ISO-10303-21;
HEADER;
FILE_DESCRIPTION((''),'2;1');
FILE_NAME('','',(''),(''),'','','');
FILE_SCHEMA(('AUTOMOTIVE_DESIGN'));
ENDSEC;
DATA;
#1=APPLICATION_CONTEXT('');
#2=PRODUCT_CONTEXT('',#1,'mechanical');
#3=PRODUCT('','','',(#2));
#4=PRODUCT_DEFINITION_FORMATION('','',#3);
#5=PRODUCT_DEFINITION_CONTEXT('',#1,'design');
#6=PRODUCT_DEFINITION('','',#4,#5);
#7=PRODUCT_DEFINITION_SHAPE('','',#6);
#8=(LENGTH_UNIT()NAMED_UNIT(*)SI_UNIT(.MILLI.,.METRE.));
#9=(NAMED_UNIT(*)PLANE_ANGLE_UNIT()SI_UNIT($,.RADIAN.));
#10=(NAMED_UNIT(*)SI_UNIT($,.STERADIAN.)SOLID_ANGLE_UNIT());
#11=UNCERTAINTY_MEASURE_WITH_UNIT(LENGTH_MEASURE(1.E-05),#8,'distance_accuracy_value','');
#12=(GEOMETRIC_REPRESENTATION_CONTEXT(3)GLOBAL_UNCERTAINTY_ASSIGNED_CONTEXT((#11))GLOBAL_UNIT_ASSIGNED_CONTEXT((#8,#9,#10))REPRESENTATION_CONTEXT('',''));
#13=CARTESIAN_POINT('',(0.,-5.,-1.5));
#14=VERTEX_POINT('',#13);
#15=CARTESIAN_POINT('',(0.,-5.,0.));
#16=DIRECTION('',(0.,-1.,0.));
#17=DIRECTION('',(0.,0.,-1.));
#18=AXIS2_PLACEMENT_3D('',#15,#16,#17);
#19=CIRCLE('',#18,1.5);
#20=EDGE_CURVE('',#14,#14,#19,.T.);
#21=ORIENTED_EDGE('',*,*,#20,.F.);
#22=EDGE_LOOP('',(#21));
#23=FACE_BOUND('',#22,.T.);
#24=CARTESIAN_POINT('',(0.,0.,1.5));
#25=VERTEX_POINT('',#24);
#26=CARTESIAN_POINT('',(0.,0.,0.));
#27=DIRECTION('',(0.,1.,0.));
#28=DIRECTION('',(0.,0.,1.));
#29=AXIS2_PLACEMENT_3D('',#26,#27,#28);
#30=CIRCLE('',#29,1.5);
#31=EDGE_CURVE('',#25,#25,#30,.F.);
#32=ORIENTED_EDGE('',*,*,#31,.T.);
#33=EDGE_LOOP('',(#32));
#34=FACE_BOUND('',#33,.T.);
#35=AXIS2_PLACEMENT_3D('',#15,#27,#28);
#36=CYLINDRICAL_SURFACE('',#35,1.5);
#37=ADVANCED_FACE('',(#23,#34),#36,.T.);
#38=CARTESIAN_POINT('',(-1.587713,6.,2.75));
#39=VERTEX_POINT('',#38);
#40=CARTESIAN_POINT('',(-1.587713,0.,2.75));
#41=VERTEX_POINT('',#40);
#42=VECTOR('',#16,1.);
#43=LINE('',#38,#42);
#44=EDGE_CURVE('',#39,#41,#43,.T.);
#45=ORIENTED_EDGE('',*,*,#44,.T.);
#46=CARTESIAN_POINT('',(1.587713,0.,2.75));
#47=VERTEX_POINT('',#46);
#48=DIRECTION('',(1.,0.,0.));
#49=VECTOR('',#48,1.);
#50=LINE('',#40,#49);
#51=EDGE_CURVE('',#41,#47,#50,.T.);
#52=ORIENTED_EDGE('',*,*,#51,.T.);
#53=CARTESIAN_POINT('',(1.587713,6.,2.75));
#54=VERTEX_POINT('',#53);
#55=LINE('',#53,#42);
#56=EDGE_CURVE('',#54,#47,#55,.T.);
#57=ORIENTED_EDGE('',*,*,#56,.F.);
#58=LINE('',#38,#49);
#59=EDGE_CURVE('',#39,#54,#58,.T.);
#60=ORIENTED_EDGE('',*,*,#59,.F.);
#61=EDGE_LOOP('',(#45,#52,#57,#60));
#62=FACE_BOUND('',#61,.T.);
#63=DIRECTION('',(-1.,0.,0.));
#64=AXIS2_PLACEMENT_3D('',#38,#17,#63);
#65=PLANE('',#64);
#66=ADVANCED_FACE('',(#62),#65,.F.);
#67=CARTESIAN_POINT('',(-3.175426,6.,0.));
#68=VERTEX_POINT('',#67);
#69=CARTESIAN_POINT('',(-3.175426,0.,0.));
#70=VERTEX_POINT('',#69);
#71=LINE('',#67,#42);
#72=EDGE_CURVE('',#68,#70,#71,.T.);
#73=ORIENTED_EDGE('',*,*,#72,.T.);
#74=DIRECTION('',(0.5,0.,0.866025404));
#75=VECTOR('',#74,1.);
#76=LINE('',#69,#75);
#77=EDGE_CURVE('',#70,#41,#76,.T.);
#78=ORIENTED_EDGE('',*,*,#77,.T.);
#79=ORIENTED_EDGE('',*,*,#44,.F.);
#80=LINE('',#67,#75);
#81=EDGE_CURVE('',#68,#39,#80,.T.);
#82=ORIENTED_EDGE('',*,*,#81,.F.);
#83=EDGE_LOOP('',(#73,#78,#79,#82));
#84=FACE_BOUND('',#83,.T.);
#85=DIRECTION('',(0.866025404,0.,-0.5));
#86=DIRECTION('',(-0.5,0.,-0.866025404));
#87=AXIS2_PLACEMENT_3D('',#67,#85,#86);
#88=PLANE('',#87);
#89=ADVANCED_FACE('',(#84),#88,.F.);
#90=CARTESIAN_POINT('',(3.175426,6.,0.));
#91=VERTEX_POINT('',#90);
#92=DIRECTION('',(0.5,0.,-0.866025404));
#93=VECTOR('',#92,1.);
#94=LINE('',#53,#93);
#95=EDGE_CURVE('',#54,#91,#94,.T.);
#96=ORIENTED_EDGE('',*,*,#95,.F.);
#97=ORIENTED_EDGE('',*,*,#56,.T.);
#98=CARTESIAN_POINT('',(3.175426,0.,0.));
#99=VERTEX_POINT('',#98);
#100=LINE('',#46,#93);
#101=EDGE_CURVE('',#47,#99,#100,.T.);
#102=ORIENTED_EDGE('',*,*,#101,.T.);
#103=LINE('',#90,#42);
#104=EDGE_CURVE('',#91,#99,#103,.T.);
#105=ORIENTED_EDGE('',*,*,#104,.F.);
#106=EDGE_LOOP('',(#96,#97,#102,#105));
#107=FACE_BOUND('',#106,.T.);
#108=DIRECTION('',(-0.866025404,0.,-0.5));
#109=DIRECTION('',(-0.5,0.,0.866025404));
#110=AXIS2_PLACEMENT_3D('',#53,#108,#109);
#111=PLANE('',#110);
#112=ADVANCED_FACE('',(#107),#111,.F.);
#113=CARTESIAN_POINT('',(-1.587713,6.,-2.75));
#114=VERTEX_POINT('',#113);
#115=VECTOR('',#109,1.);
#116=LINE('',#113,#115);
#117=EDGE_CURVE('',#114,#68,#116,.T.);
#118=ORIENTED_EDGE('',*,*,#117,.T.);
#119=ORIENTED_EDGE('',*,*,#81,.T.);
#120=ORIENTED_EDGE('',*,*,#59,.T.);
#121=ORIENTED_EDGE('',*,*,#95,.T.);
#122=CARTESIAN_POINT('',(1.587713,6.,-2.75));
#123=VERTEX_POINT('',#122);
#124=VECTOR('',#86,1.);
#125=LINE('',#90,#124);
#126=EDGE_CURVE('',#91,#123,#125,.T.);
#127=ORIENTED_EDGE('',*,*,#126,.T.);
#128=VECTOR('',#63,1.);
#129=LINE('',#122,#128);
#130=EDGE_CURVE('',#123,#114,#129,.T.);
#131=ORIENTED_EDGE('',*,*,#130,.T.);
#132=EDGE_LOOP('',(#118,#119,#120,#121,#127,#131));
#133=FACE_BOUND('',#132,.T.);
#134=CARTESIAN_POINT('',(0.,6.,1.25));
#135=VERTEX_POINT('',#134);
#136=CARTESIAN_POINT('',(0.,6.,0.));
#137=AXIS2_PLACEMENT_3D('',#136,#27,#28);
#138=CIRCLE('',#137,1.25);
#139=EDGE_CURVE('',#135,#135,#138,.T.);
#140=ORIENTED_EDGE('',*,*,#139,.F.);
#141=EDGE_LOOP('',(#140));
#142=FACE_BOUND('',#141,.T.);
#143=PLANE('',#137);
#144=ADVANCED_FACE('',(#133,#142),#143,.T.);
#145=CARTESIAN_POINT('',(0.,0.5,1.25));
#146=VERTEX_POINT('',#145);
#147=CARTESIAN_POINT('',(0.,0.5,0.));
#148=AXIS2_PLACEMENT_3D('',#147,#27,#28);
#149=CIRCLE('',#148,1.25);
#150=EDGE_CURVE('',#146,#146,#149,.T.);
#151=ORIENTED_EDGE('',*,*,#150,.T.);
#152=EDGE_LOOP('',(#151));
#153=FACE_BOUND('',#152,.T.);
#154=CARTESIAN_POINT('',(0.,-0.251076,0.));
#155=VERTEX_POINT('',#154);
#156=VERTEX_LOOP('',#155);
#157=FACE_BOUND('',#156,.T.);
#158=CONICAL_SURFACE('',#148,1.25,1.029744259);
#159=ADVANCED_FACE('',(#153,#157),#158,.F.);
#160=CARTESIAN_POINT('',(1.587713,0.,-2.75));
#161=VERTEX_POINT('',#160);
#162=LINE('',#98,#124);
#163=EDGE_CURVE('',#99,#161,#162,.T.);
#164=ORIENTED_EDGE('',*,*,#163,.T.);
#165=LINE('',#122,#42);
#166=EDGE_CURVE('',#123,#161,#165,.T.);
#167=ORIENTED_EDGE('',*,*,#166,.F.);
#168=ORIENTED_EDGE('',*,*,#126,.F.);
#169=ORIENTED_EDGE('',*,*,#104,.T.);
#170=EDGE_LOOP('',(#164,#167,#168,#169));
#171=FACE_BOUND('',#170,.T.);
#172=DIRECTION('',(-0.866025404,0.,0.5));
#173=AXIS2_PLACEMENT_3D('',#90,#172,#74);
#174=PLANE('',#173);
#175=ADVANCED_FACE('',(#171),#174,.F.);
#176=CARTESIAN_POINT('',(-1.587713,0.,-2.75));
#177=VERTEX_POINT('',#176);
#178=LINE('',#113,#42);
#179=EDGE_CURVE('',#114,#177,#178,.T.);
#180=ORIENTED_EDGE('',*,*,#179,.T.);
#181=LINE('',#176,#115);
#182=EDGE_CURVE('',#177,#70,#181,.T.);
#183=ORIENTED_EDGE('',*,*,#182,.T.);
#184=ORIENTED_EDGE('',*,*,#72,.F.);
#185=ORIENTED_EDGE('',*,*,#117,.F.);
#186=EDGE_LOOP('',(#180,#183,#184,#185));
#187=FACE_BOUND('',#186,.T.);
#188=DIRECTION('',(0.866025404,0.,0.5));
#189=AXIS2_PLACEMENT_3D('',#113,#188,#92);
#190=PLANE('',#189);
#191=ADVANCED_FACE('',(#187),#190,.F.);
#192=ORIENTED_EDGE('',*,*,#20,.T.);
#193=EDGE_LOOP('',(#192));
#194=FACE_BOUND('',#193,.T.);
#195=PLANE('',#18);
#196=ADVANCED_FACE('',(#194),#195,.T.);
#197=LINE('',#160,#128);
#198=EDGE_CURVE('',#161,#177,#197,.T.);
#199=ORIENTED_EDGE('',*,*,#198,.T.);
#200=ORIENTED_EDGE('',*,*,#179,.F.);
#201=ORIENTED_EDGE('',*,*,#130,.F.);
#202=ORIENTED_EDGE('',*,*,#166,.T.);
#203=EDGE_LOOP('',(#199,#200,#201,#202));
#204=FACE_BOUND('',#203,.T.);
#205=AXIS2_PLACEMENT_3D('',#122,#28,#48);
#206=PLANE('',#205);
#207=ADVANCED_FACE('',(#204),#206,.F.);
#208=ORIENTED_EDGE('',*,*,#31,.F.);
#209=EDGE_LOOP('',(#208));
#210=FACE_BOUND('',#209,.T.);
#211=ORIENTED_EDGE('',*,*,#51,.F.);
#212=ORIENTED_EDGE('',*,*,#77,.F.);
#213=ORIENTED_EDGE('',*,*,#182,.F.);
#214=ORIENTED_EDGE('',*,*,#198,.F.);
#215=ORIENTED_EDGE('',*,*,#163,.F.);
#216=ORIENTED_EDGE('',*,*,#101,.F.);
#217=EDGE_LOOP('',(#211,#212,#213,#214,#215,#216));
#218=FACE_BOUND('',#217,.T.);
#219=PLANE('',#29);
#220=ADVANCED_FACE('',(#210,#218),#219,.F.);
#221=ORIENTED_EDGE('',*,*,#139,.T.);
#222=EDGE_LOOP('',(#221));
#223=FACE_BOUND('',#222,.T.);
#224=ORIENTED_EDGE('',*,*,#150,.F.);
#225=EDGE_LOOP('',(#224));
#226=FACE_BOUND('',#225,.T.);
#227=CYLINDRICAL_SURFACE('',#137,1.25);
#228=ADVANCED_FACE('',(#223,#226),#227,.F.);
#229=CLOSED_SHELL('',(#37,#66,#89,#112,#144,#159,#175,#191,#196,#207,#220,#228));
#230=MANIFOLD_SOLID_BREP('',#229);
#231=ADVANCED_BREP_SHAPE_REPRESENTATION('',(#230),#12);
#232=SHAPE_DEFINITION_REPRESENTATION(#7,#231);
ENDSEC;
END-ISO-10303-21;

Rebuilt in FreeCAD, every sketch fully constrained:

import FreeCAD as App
import Part
import Sketcher

V = App.Vector
Q = App.Units.Quantity

doc = App.newDocument("Part")
params = doc.addObject("Spreadsheet::Sheet", "Params")
for row, (alias, value) in enumerate([
    ("pad1_length", "6 mm"),
    ("sketch2_diameter", "3 mm"),
    ("pad2_length", "5 mm"),
    ("sketch3_diameter", "2.5 mm"),
    ("hole_diameter", "2.5 mm"),
    ("hole_depth", "5.5 mm"),
], start=1):
    params.set(f"A{row}", alias)
    params.set(f"B{row}", "=" + value)
    params.setAlias(f"B{row}", alias)

body = doc.addObject("PartDesign::Body", "Body")

sketch1 = doc.addObject("Sketcher::SketchObject", "Sketch")
body.addObject(sketch1)
sketch1.AttachmentSupport = (doc.XZ_Plane, [""])
sketch1.MapMode = "FlatFace"
sketch1.addGeometry([
    Part.LineSegment(V(1.6, -2.8, 0), V(-1.6, -2.8, 0)),
    Part.LineSegment(V(-1.6, -2.8, 0), V(-3.2, 0, 0)),
    Part.LineSegment(V(-3.2, 0, 0), V(-1.6, 2.8, 0)),
    Part.LineSegment(V(-1.6, 2.8, 0), V(1.6, 2.8, 0)),
    Part.LineSegment(V(1.6, 2.8, 0), V(3.2, 0, 0)),
    Part.LineSegment(V(3.2, 0, 0), V(1.6, -2.8, 0)),
], False)
sketch1.addConstraint([
    Sketcher.Constraint("Coincident", 0, 2, 1, 1),
    Sketcher.Constraint("Coincident", 1, 2, 2, 1),
    Sketcher.Constraint("Coincident", 2, 2, 3, 1),
    Sketcher.Constraint("Coincident", 3, 2, 4, 1),
    Sketcher.Constraint("Coincident", 4, 2, 5, 1),
    Sketcher.Constraint("Coincident", 5, 2, 0, 1),
    Sketcher.Constraint("Horizontal", 0),
    Sketcher.Constraint("Horizontal", 3),
    Sketcher.Constraint("Symmetric", 0, 2, 3, 2, -1, 1),
    Sketcher.Constraint("Symmetric", 1, 2, 4, 2, -1, 1),
    Sketcher.Constraint("PointOnObject", 1, 2, -1),
    Sketcher.Constraint("Parallel", 2, 5),
    Sketcher.Constraint("Vertical", 0, 2, 2, 2),
    Sketcher.Constraint("Angle", 1, Q("120 deg")),
    Sketcher.Constraint("DistanceY", 0, 2, 2, 2, 5.5),
    Sketcher.Constraint("DistanceX", 0, 2, 0, 1, 3.175426),
])
pad1 = doc.addObject("PartDesign::Pad", "Pad")
body.addObject(pad1)
pad1.Profile = sketch1
pad1.setExpression("Length", "Params.pad1_length")
pad1.Reversed = True

sketch2 = doc.addObject("Sketcher::SketchObject", "Sketch001")
body.addObject(sketch2)
sketch2.AttachmentSupport = (doc.XZ_Plane, [""])
sketch2.MapMode = "FlatFace"
sketch2.addGeometry(Part.Circle(V(0, 0, 0), V(0, 0, 1), 1.5), False)
sketch2.addConstraint([
    Sketcher.Constraint("Coincident", 0, 3, -1, 1),
    Sketcher.Constraint("Diameter", 0, 3.0),
])
sketch2.setExpression("Constraints[1]", "Params.sketch2_diameter")
pad2 = doc.addObject("PartDesign::Pad", "Pad001")
body.addObject(pad2)
pad2.Profile = sketch2
pad2.setExpression("Length", "Params.pad2_length")

sketch3 = doc.addObject("Sketcher::SketchObject", "Sketch002")
body.addObject(sketch3)
sketch3.AttachmentSupport = (doc.XZ_Plane, [""])
sketch3.MapMode = "FlatFace"
sketch3.AttachmentOffset = App.Placement(V(0, 0, -6), App.Rotation())
sketch3.addGeometry(Part.Circle(V(0, 0, 0), V(0, 0, 1), 1.2), False)
sketch3.addConstraint([
    Sketcher.Constraint("Coincident", 0, 3, -1, 1),
    Sketcher.Constraint("Diameter", 0, 2.5),
])
sketch3.setExpression("Constraints[1]", "Params.sketch3_diameter")
doc.recompute()
hole = doc.addObject("PartDesign::Hole", "Hole")
body.addObject(hole)
hole.Profile = sketch3
hole.ThreadType = "None"
hole.setExpression("Diameter", "Params.hole_diameter")
hole.DepthType = "Dimension"
hole.setExpression("Depth", "Params.hole_depth")
hole.DrillPoint = "Angled"
hole.DrillPointAngle = 118
hole.Reversed = True

doc.recompute()
